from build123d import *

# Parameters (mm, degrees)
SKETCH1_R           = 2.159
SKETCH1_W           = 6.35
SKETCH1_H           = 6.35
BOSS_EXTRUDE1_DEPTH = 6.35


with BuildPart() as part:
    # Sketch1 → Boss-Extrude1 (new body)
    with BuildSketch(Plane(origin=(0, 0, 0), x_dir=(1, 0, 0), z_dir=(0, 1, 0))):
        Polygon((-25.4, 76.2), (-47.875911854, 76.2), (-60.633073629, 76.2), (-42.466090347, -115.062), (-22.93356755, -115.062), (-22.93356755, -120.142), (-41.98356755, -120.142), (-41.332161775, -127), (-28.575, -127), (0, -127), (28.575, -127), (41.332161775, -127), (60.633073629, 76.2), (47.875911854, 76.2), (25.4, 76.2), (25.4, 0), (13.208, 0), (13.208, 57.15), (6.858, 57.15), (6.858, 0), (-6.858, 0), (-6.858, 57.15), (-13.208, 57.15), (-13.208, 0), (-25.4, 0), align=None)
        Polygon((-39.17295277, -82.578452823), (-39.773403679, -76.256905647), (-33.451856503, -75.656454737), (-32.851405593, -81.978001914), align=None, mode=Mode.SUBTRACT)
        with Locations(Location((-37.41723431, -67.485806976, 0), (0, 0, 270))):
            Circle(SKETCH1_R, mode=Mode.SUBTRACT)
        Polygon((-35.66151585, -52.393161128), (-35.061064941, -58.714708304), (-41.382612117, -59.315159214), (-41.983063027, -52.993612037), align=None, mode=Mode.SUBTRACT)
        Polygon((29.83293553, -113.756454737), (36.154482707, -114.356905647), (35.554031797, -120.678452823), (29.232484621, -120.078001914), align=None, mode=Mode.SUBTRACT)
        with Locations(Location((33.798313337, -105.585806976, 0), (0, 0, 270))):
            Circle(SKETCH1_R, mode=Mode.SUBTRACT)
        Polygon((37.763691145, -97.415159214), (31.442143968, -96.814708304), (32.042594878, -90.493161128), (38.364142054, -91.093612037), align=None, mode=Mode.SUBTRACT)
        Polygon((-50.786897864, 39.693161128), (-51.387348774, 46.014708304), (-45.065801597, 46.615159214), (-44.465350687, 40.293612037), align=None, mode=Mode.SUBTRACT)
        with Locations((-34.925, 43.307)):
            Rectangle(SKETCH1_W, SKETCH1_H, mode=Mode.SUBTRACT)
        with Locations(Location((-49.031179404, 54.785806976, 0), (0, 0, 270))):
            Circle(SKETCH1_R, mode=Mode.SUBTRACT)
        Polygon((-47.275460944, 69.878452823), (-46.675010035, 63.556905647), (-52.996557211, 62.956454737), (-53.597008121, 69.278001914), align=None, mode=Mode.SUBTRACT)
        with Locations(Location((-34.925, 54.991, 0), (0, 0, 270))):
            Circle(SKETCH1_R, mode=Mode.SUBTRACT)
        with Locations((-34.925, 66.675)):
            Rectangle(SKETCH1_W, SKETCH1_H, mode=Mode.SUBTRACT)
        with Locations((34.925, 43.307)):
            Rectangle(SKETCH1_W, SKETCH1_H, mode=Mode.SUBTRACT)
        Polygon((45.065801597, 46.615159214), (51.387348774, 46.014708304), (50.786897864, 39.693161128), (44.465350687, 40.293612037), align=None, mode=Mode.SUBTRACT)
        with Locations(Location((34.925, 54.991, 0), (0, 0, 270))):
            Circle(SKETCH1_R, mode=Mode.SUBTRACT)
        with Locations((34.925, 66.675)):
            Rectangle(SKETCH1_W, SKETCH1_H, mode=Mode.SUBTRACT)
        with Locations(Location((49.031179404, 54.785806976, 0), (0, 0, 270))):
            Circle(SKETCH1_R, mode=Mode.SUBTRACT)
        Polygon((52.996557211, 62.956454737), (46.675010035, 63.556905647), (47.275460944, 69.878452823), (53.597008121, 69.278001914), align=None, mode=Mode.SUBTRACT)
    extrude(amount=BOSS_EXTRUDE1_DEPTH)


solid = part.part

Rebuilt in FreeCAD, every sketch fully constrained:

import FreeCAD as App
import Part
import Sketcher
from FreeCAD import Vector
Q = App.Units.Quantity


def add_polygon(sketch, points):
    """Adds a closed chain of lines whose ends are joined by coincident constraints."""
    first, n = sketch.GeometryCount, len(points)
    for a, b in zip(points, points[1:] + points[:1]):
        sketch.addGeometry(Part.LineSegment(App.Vector(*a, 0), App.Vector(*b, 0)), False)
    for i in range(n):
        sketch.addConstraint(Sketcher.Constraint("Coincident", first + i, 2, first + (i + 1) % n, 1))

doc = App.newDocument("Part")
body = doc.addObject("PartDesign::Body", "Body")

sketch1 = body.newObject("Sketcher::SketchObject", "Sketch")
sketch1.AttachmentSupport = (doc.getObject("XZ_Plane"), [""])
sketch1.MapMode = "FlatFace"
add_polygon(sketch1, [(-25.4, -76.2), (-60.633074, -76.2), (-42.46609, 115.062), (-22.933568, 115.062), (-22.933568, 120.142), (-41.983568, 120.142), (-41.332162, 127), (41.332162, 127), (60.633074, -76.2), (25.4, -76.2), (25.4, 0), (13.208, 0), (13.208, -57.15), (6.858, -57.15), (6.858, 0), (-6.858, 0), (-6.858, -57.15), (-13.208, -57.15), (-13.208, 0), (-25.4, 0)])
add_polygon(sketch1, [(-32.851406, 81.978002), (-39.172953, 82.578453), (-39.773404, 76.256906), (-33.451857, 75.656455)])
sketch1.addGeometry(Part.Circle(Vector(-37.417234, 67.485807, 0), Vector(0, 0, 1), 2.159), False)
add_polygon(sketch1, [(-41.983063, 52.993612), (-35.661516, 52.393161), (-35.061065, 58.714708), (-41.382612, 59.315159)])
add_polygon(sketch1, [(29.232485, 120.078002), (29.832936, 113.756455), (36.154483, 114.356906), (35.554032, 120.678453)])
sketch1.addGeometry(Part.Circle(Vector(33.798313, 105.585807, 0), Vector(0, 0, 1), 2.159), False)
add_polygon(sketch1, [(38.364142, 91.093612), (37.763691, 97.415159), (31.442144, 96.814708), (32.042595, 90.493161)])
add_polygon(sketch1, [(-44.465351, -40.293612), (-50.786898, -39.693161), (-51.387349, -46.014708), (-45.065802, -46.615159)])
add_polygon(sketch1, [(-31.75, -40.132), (-38.1, -40.132), (-38.1, -46.482), (-31.75, -46.482)])
sketch1.addGeometry(Part.Circle(Vector(-49.031179, -54.785807, 0), Vector(0, 0, 1), 2.159), False)
add_polygon(sketch1, [(-53.597008, -69.278002), (-47.275461, -69.878453), (-46.67501, -63.556906), (-52.996557, -62.956455)])
sketch1.addGeometry(Part.Circle(Vector(-34.925, -54.991, 0), Vector(0, 0, 1), 2.159), False)
add_polygon(sketch1, [(-31.75, -63.5), (-38.1, -63.5), (-38.1, -69.85), (-31.75, -69.85)])
add_polygon(sketch1, [(38.1, -40.132), (31.75, -40.132), (31.75, -46.482), (38.1, -46.482)])
add_polygon(sketch1, [(44.465351, -40.293612), (45.065802, -46.615159), (51.387349, -46.014708), (50.786898, -39.693161)])
sketch1.addGeometry(Part.Circle(Vector(34.925, -54.991, 0), Vector(0, 0, 1), 2.159), False)
add_polygon(sketch1, [(38.1, -63.5), (31.75, -63.5), (31.75, -69.85), (38.1, -69.85)])
sketch1.addGeometry(Part.Circle(Vector(49.031179, -54.785807, 0), Vector(0, 0, 1), 2.159), False)
add_polygon(sketch1, [(53.597008, -69.278002), (52.996557, -62.956455), (46.67501, -63.556906), (47.275461, -69.878453)])
sketch1.addConstraint([
    Sketcher.Constraint("Horizontal", 0),
    Sketcher.Constraint("Horizontal", 2),
    Sketcher.Constraint("Vertical", 3),
    Sketcher.Constraint("Horizontal", 4),
    Sketcher.Constraint("Horizontal", 6),
    Sketcher.Constraint("Horizontal", 8),
    Sketcher.Constraint("Vertical", 9),
    Sketcher.Constraint("Horizontal", 10),
    Sketcher.Constraint("Vertical", 11),
    Sketcher.Constraint("Horizontal", 12),
    Sketcher.Constraint("Vertical", 13),
    Sketcher.Constraint("Horizontal", 14),
    Sketcher.Constraint("Vertical", 15),
    Sketcher.Constraint("Horizontal", 16),
    Sketcher.Constraint("Vertical", 17),
    Sketcher.Constraint("Horizontal", 18),
    Sketcher.Constraint("Vertical", 19),
    Sketcher.Constraint("Horizontal", 42),
    Sketcher.Constraint("Vertical", 43),
    Sketcher.Constraint("Horizontal", 44),
    Sketcher.Constraint("Vertical", 45),
    Sketcher.Constraint("Horizontal", 52),
    Sketcher.Constraint("Vertical", 53),
    Sketcher.Constraint("Horizontal", 54),
    Sketcher.Constraint("Vertical", 55),
    Sketcher.Constraint("Horizontal", 56),
    Sketcher.Constraint("Vertical", 57),
    Sketcher.Constraint("Horizontal", 58),
    Sketcher.Constraint("Vertical", 59),
    Sketcher.Constraint("Horizontal", 65),
    Sketcher.Constraint("Vertical", 66),
    Sketcher.Constraint("Horizontal", 67),
    Sketcher.Constraint("Vertical", 68),
    Sketcher.Constraint("Equal", 24, 33),
    Sketcher.Constraint("Equal", 33, 46),
    Sketcher.Constraint("Equal", 46, 51),
    Sketcher.Constraint("Equal", 51, 64),
    Sketcher.Constraint("Equal", 64, 69),
    Sketcher.Constraint("Symmetric", 13, 2, 14, 2, -1, 1),
    Sketcher.Constraint("Symmetric", 10, 2, 17, 2, -1, 1),
    Sketcher.Constraint("Symmetric", 51, 3, 64, 3, -2),
    Sketcher.Constraint("Symmetric", 46, 3, 69, 3, -2),
    Sketcher.Constraint("Symmetric", 0, 2, 7, 2, -2),
    Sketcher.Constraint("Symmetric", 9, 2, 18, 2, -2),
    Sketcher.Constraint("Symmetric", 45, 2, 56, 2, -2),
    Sketcher.Constraint("Symmetric", 43, 2, 58, 2, -2),
    Sketcher.Constraint("Symmetric", 40, 2, 60, 2, -2),
    Sketcher.Constraint("Symmetric", 39, 2, 61, 2, -2),
    Sketcher.Constraint("Symmetric", 38, 2, 62, 2, -2),
    Sketcher.Constraint("Symmetric", 41, 2, 63, 2, -2),
    Sketcher.Constraint("Symmetric", 55, 2, 65, 2, -2),
    Sketcher.Constraint("Symmetric", 53, 2, 67, 2, -2),
    Sketcher.Constraint("Symmetric", 49, 2, 70, 2, -2),
    Sketcher.Constraint("Symmetric", 48, 2, 71, 2, -2),
    Sketcher.Constraint("Symmetric", 47, 2, 72, 2, -2),
    Sketcher.Constraint("Symmetric", 50, 2, 73, 2, -2),
    Sketcher.Constraint("Parallel", 1, 5),
    Sketcher.Constraint("Perpendicular", 5, 20),
    Sketcher.Constraint("Perpendicular", 20, 21),
    Sketcher.Constraint("Perpendicular", 21, 22),
    Sketcher.Constraint("Perpendicular", 22, 23),
    Sketcher.Constraint("Perpendicular", 23, 25),
    Sketcher.Constraint("Perpendicular", 25, 26),
    Sketcher.Constraint("Perpendicular", 26, 27),
    Sketcher.Constraint("Perpendicular", 27, 28),
    Sketcher.Constraint("Parallel", 7, 29),
    Sketcher.Constraint("Perpendicular", 29, 30),
    Sketcher.Constraint("Perpendicular", 30, 31),
    Sketcher.Constraint("Perpendicular", 31, 32),
    Sketcher.Constraint("Perpendicular", 32, 34),
    Sketcher.Constraint("Perpendicular", 34, 35),
    Sketcher.Constraint("Perpendicular", 35, 36),
    Sketcher.Constraint("Perpendicular", 36, 37),
    Sketcher.Constraint("Perpendicular", 28, 38),
    Sketcher.Constraint("Perpendicular", 38, 39),
    Sketcher.Constraint("Perpendicular", 39, 40),
    Sketcher.Constraint("Perpendicular", 40, 41),
    Sketcher.Constraint("Perpendicular", 41, 47),
    Sketcher.Constraint("Perpendicular", 47, 48),
    Sketcher.Constraint("Perpendicular", 48, 49),
    Sketcher.Constraint("Perpendicular", 49, 50),
    Sketcher.Constraint("Perpendicular", 37, 60),
    Sketcher.Constraint("Horizontal", 12, 2, 15, 2),
    Sketcher.Constraint("Vertical", 43, 2, 52, 2),
    Sketcher.Constraint("Vertical", 45, 2, 54, 2),
    Sketcher.Constraint("Equal", 16, 42),
    Sketcher.Constraint("Equal", 67, 43),
    Sketcher.Constraint("Equal", 45, 53),
    Sketcher.Constraint("Equal", 20, 21),
    Sketcher.Constraint("Equal", 23, 25),
    Sketcher.Constraint("Equal", 25, 26),
    Sketcher.Constraint("Equal", 28, 29),
    Sketcher.Constraint("Equal", 29, 30),
    Sketcher.Constraint("Equal", 32, 34),
    Sketcher.Constraint("Equal", 34, 35),
    Sketcher.Constraint("Equal", 37, 38),
    Sketcher.Constraint("Equal", 38, 39),
    Sketcher.Constraint("Equal", 41, 47),
    Sketcher.Constraint("Equal", 47, 48),
    Sketcher.Constraint("Diameter", 24, Q("0.17 in")),
    Sketcher.Constraint("DistanceY", 9, 1, 9, 2, Q("3 in")),
    Sketcher.Constraint("DistanceY", 3, 1, 3, 2, Q("0.2 in")),
    Sketcher.Constraint("DistanceY", -1, 1, 5, 2, Q("5 in")),
    Sketcher.Constraint("DistanceX", -1, 1, 8, 2, Q("1 in")),
    Sketcher.Constraint("DistanceX", 4, 2, 4, 1, Q("0.75 in")),
    Sketcher.Constraint("DistanceX", 10, 2, 10, 1, Q("0.48 in")),
    Sketcher.Constraint("DistanceX", 12, 2, 12, 1, Q("0.25 in")),
    Sketcher.Constraint("DistanceY", 11, 2, 11, 1, Q("2.25 in")),
    Sketcher.Constraint("DistanceX", 42, 2, -1, 1, Q("1.5 in")),
    Sketcher.Constraint("DistanceY", 52, 2, -1, 1, Q("2.5 in")),
    Sketcher.Constraint("Distance", 20, Q("0.25 in")),
    Sketcher.Constraint("DistanceY", -1, 1, 1, 2, Q("4.53 in")),
    Sketcher.Constraint("DistanceY", 42, 2, -1, 1, Q("1.58 in")),
    Sketcher.Constraint("DistanceX", 51, 3, -1, 1, Q("1.375 in")),
    Sketcher.Constraint("DistanceY", 51, 3, -1, 1, Q("2.165 in")),
    Sketcher.Constraint("DistanceY", -1, 1, 23, 2, 81.978002),
    Sketcher.Constraint("DistanceY", -1, 1, 32, 2, 120.078002),
    Sketcher.Constraint("DistanceX", 40, 2, -1, 1, 45.065802),
    Sketcher.Constraint("DistanceY", 50, 2, -1, 1, 69.278002),
    Sketcher.Constraint("Distance", 7, 204.114588),
    Sketcher.Constraint("DistanceX", 0, 2, 0, 1, 35.233074),
    Sketcher.Constraint("DistanceX", 2, 1, 2, 2, 19.532523),
    Sketcher.Constraint("DistanceX", 46, 3, -1, 1, 49.031179),
    Sketcher.Constraint("DistanceY", -1, 1, 25, 2, 52.393161),
    Sketcher.Constraint("DistanceX", -1, 1, 31, 2, 35.554032),
    Sketcher.Constraint("DistanceX", -1, 1, 34, 2, 37.763691),
    Sketcher.Constraint("DistanceY", -1, 1, 34, 2, 97.415159),
    Sketcher.Constraint("DistanceY", 38, 2, -1, 1, 39.693161),
    Sketcher.Constraint("DistanceX", 47, 2, -1, 1, 47.275461),
    Sketcher.Constraint("DistanceX", 24, 3, -1, 1, 37.417234),
    Sketcher.Constraint("DistanceY", -1, 1, 24, 3, 67.485807),
    Sketcher.Constraint("DistanceX", -1, 1, 33, 3, 33.798313),
    Sketcher.Constraint("DistanceY", -1, 1, 33, 3, 105.585807),
    Sketcher.Constraint("DistanceY", 46, 3, -1, 1, 54.785807),
    Sketcher.Constraint("DistanceX", 20, 2, -1, 1, 39.172953),
    Sketcher.Constraint("DistanceX", 25, 2, -1, 1, 35.661516),
])
pad1 = body.newObject("PartDesign::Pad", "Pad")
pad1.Profile = sketch1
pad1.Length = Q("0.25 in")
pad1.Reversed = True

doc.recompute()
